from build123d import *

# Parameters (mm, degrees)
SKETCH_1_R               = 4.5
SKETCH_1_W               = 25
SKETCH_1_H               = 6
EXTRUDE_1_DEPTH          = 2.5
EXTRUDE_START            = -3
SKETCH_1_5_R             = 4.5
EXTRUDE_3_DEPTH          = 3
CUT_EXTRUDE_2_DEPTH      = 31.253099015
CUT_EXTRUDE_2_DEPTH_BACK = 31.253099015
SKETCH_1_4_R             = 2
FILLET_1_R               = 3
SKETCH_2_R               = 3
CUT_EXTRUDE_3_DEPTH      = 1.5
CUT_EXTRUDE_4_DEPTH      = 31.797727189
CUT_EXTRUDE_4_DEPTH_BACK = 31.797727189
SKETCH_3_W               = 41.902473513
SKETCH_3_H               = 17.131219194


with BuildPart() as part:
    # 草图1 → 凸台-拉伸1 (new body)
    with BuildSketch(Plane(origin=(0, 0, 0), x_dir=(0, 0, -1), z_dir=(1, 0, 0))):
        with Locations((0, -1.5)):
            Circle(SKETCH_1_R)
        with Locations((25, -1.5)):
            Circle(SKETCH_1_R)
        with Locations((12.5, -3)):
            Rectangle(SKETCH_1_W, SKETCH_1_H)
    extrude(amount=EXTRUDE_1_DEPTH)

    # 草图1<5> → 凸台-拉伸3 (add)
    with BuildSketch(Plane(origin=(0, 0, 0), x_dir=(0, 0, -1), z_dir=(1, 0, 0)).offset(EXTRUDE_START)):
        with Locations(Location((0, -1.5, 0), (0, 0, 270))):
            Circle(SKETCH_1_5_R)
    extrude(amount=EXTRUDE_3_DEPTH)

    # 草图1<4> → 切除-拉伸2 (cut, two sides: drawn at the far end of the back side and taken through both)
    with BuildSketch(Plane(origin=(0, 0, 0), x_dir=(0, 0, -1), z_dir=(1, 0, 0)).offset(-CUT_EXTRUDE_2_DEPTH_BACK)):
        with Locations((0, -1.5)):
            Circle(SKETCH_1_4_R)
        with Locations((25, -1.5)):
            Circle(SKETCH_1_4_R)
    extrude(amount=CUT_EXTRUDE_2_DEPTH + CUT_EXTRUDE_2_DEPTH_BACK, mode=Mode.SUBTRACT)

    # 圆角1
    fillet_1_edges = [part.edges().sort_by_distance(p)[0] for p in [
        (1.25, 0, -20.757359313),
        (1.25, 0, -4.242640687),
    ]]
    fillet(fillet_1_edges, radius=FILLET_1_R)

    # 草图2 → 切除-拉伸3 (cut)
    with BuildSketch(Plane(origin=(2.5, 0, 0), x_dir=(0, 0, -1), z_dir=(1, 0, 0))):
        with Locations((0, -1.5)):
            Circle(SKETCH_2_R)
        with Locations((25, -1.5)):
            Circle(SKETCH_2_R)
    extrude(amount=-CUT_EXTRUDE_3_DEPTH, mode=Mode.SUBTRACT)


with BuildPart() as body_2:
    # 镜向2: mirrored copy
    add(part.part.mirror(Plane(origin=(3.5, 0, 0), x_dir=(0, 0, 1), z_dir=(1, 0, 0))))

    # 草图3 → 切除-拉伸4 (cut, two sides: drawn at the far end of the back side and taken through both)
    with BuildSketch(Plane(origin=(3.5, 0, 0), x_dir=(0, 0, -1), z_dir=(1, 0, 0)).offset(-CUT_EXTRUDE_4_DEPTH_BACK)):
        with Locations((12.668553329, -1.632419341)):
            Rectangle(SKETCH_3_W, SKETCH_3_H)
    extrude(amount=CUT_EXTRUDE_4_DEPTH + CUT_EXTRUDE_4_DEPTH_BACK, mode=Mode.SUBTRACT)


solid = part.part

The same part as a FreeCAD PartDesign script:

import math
import FreeCAD as App
import Part
import Sketcher
from FreeCAD import Vector


def edges_at(feature, points):
    """Names of the edges that pass closest to the given points."""
    edges = feature.Shape.Edges
    near = lambda p: min(range(len(edges)), key=lambda i: edges[i].distToShape(Part.Vertex(*p))[0])
    return sorted({f"Edge{near(p) + 1}" for p in points})


def add_polygon(sketch, points):
    """Adds a closed chain of lines whose ends are joined by coincident constraints."""
    first, n = sketch.GeometryCount, len(points)
    for a, b in zip(points, points[1:] + points[:1]):
        sketch.addGeometry(Part.LineSegment(App.Vector(*a, 0), App.Vector(*b, 0)), False)
    for i in range(n):
        sketch.addConstraint(Sketcher.Constraint("Coincident", first + i, 2, first + (i + 1) % n, 1))

doc = App.newDocument("Part")
body = doc.addObject("PartDesign::Body", "Body")

# Sketch on YZ plane
sketch1 = doc.addObject("Sketcher::SketchObject", "Sketch")
body.addObject(sketch1)
sketch1.AttachmentSupport = (doc.YZ_Plane, [""])
sketch1.MapMode = "FlatFace"
sketch1.addGeometry([
    Part.ArcOfCircle(Part.Circle(Vector(-1.5, 0, 0), Vector(0, 0, 1), 4.5), math.radians(-70.528779), math.radians(180)),
    Part.LineSegment(Vector(-6, 0, 0), Vector(-6, -25, 0)),
    Part.ArcOfCircle(Part.Circle(Vector(-1.5, -25, 0), Vector(0, 0, 1), 4.5), math.radians(180), math.radians(430.528779)),
    Part.LineSegment(Vector(0, -20.757359, 0), Vector(0, -4.242641, 0)),
], False)
sketch1.addConstraint([
    Sketcher.Constraint("Tangent", 0, 2, 1, 1),
    Sketcher.Constraint("Tangent", 1, 2, 2, 1),
    Sketcher.Constraint("Coincident", 2, 2, 3, 1),
    Sketcher.Constraint("Coincident", 3, 2, 0, 1),
    Sketcher.Constraint("Vertical", 1),
    Sketcher.Constraint("Vertical", 3),
    Sketcher.Constraint("Equal", 0, 2),
    Sketcher.Constraint("PointOnObject", 0, 3, -1),
    Sketcher.Constraint("PointOnObject", 2, 2, -2),
    Sketcher.Constraint("Radius", 0, 4.5),
    Sketcher.Constraint("DistanceY", 1, 2, 1, 1, 25.0),
    Sketcher.Constraint("DistanceX", 0, 2, -1, 1, 6.0),
])
pad1 = doc.addObject("PartDesign::Pad", "Pad")
body.addObject(pad1)
pad1.Profile = sketch1
pad1.Length = 2.5

# Sketch on YZ plane
sketch2 = doc.addObject("Sketcher::SketchObject", "Sketch001")
body.addObject(sketch2)
sketch2.AttachmentSupport = (doc.YZ_Plane, [""])
sketch2.MapMode = "FlatFace"
sketch2.AttachmentOffset = App.Placement(Vector(0, 0, -3), App.Rotation())
sketch2.addGeometry(Part.Circle(Vector(-1.5, 0, 0), Vector(0, 0, 1), 4.5), False)
sketch2.addConstraint([
    Sketcher.Constraint("PointOnObject", 0, 3, -1),
    Sketcher.Constraint("Diameter", 0, 9.0),
    Sketcher.Constraint("DistanceX", 0, 3, -1, 1, 1.5),
])
pad2 = doc.addObject("PartDesign::Pad", "Pad001")
body.addObject(pad2)
pad2.Profile = sketch2
pad2.Length = 3

# Sketch on YZ plane
sketch3 = doc.addObject("Sketcher::SketchObject", "Sketch002")
body.addObject(sketch3)
sketch3.AttachmentSupport = (doc.YZ_Plane, [""])
sketch3.MapMode = "FlatFace"
sketch3.addGeometry([
    Part.Circle(Vector(-1.5, 0, 0), Vector(0, 0, 1), 2),
    Part.Circle(Vector(-1.5, -25, 0), Vector(0, 0, 1), 2),
], False)
sketch3.addConstraint([
    Sketcher.Constraint("Equal", 0, 1),
    Sketcher.Constraint("PointOnObject", 0, 3, -1),
    Sketcher.Constraint("Vertical", 0, 3, 1, 3),
    Sketcher.Constraint("Diameter", 0, 4.0),
    Sketcher.Constraint("DistanceY", 1, 3, -1, 1, 25.0),
    Sketcher.Constraint("DistanceX", 0, 3, -1, 1, 1.5),
])
pocket1 = doc.addObject("PartDesign::Pocket", "Pocket")
body.addObject(pocket1)
pocket1.Profile = sketch3
pocket1.Type = "ThroughAll"
pocket1.Midplane = True
doc.recompute()

fillet = doc.addObject("PartDesign::Fillet", "Fillet")
body.addObject(fillet)
fillet.Base = (pocket1, edges_at(pocket1, [(1.25, 0, -20.757), (1.25, 0, -4.243)]))
fillet.Radius = 3

# Sketch on YZ plane
sketch4 = doc.addObject("Sketcher::SketchObject", "Sketch003")
body.addObject(sketch4)
sketch4.AttachmentSupport = (doc.YZ_Plane, [""])
sketch4.MapMode = "FlatFace"
sketch4.AttachmentOffset = App.Placement(Vector(0, 0, 2.5), App.Rotation())
sketch4.addGeometry([
    Part.Circle(Vector(-1.5, 0, 0), Vector(0, 0, 1), 3),
    Part.Circle(Vector(-1.5, -25, 0), Vector(0, 0, 1), 3),
], False)
sketch4.addConstraint([
    Sketcher.Constraint("Equal", 0, 1),
    Sketcher.Constraint("PointOnObject", 0, 3, -1),
    Sketcher.Constraint("Vertical", 0, 3, 1, 3),
    Sketcher.Constraint("Diameter", 0, 6.0),
    Sketcher.Constraint("DistanceY", 1, 3, -1, 1, 25.0),
    Sketcher.Constraint("DistanceX", 0, 3, -1, 1, 1.5),
])
pocket2 = doc.addObject("PartDesign::Pocket", "Pocket001")
body.addObject(pocket2)
pocket2.Profile = sketch4
pocket2.Length = 1.5
body2 = doc.addObject("PartDesign::Body", "Body001")
doc.recompute()

mirroring = doc.addObject("Part::Mirroring", "Mirroring")
mirroring.Source = body
mirroring.Base = Vector(3.5, 0, 0)
mirroring.Normal = Vector(1, 0, 0)
body2.BaseFeature = mirroring
doc.recompute()

# Sketch on YZ plane
sketch5 = doc.addObject("Sketcher::SketchObject", "Sketch004")
body2.addObject(sketch5)
sketch5.AttachmentSupport = (doc.getObject("YZ_Plane001"), [""])
sketch5.MapMode = "FlatFace"
sketch5.AttachmentOffset = App.Placement(Vector(0, 0, 3.5), App.Rotation())
add_polygon(sketch5, [(6.93319, 8.282683), (-10.198029, 8.282683), (-10.198029, -33.61979), (6.93319, -33.61979)])  # lines 0-3
sketch5.addConstraint([
    Sketcher.Constraint("Horizontal", 0),
    Sketcher.Constraint("Vertical", 1),
    Sketcher.Constraint("Horizontal", 2),
    Sketcher.Constraint("Vertical", 3),
    Sketcher.Constraint("DistanceX", 0, 2, 0, 1, 17.131219),
    Sketcher.Constraint("DistanceY", 1, 2, 1, 1, 41.902474),
    Sketcher.Constraint("DistanceX", 0, 2, -1, 1, 10.198029),
    Sketcher.Constraint("DistanceY", 1, 2, -1, 1, 33.61979),
])
pocket3 = doc.addObject("PartDesign::Pocket", "Pocket002")
body2.addObject(pocket3)
pocket3.Profile = sketch5
pocket3.Type = "ThroughAll"
pocket3.Midplane = True
mirroring.Visibility = False

doc.recompute()
